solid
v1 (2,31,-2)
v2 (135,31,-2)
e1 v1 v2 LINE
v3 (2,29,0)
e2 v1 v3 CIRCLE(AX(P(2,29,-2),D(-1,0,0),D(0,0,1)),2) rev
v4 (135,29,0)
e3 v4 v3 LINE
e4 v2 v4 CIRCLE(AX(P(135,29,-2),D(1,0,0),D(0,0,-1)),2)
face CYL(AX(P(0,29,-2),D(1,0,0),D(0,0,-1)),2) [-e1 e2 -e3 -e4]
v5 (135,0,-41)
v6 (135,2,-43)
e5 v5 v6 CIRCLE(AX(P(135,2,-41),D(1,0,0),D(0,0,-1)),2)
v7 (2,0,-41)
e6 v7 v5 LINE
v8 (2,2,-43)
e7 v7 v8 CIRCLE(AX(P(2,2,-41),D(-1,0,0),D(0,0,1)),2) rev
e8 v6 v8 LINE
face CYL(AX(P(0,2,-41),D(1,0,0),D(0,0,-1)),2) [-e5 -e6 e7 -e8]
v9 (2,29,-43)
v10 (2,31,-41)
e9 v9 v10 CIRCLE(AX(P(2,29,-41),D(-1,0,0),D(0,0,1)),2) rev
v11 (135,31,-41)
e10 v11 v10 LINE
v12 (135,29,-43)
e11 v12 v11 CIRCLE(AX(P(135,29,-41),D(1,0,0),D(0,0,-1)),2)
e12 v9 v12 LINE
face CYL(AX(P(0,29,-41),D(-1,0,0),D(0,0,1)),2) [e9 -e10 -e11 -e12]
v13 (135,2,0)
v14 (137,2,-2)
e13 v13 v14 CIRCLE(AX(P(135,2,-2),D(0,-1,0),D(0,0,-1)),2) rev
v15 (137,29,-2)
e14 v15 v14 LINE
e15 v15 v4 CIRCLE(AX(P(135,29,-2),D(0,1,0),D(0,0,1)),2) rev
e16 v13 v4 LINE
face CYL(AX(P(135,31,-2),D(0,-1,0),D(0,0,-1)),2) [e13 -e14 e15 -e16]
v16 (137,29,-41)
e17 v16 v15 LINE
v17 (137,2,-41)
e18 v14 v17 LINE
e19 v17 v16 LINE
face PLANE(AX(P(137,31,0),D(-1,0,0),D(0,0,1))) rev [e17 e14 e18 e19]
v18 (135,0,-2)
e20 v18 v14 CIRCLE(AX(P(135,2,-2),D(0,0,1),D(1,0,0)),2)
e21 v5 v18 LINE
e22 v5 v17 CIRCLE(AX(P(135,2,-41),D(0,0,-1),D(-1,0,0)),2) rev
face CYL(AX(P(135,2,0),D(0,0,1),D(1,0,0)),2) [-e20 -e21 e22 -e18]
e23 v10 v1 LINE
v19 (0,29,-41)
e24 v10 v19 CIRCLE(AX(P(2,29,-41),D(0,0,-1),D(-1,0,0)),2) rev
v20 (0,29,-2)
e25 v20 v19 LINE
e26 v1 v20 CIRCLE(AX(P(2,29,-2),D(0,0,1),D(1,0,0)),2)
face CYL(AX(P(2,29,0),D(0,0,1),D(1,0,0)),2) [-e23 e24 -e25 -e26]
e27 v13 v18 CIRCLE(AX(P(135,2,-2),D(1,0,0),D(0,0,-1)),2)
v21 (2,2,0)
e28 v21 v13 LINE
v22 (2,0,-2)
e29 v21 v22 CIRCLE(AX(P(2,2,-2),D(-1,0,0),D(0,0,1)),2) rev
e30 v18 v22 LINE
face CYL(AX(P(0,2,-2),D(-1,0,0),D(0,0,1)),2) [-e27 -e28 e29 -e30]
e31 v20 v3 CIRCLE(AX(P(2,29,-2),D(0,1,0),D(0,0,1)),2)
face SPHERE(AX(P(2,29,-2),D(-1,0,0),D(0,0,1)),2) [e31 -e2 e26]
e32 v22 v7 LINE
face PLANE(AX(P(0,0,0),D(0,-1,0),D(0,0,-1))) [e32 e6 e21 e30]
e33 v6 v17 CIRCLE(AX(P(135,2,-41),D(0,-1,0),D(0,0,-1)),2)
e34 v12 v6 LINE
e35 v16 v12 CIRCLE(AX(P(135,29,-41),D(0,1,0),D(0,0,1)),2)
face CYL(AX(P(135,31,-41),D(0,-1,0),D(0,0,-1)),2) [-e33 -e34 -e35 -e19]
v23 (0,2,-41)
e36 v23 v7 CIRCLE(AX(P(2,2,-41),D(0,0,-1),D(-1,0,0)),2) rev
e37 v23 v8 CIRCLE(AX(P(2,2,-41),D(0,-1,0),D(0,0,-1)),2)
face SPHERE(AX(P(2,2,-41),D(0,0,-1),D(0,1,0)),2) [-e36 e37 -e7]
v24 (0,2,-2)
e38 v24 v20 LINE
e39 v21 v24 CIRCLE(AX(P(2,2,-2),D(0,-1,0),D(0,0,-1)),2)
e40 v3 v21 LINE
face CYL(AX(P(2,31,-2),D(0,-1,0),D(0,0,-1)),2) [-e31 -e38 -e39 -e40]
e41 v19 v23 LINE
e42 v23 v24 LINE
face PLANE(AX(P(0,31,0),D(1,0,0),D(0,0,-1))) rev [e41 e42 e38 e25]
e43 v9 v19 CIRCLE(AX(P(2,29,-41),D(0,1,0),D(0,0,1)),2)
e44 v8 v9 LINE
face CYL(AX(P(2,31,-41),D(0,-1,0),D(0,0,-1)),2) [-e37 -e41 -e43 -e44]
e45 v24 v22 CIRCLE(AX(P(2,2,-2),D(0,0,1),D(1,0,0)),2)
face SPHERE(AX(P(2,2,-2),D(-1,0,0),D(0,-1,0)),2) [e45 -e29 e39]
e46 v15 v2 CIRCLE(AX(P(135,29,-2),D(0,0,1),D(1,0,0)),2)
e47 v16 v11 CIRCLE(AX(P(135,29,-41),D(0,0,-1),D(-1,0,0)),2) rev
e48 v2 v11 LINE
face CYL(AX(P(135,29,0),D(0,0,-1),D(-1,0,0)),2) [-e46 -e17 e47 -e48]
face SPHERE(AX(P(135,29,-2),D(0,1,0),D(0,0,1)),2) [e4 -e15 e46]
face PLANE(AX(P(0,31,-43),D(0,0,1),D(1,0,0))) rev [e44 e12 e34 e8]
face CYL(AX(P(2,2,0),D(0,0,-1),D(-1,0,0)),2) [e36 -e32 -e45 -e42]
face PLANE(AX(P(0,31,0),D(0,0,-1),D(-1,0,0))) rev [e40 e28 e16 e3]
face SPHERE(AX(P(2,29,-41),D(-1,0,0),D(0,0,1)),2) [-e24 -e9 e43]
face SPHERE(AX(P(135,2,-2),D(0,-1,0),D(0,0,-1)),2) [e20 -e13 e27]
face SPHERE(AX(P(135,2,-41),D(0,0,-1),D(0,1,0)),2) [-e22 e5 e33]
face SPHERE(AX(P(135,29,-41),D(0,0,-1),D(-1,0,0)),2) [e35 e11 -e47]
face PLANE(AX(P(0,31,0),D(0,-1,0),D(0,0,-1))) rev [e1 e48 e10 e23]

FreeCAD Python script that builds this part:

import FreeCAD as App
import Part
import Sketcher

V = App.Vector

doc = App.newDocument("Part")
body = doc.addObject("PartDesign::Body", "Body")

sketch1 = body.newObject("Sketcher::SketchObject", "Sketch")
sketch1.AttachmentSupport = (doc.getObject("XZ_Plane"), [""])
sketch1.MapMode = "FlatFace"
sketch1.addGeometry([
    Part.LineSegment(V(0, -43, 0), V(0, 0, 0)),
    Part.LineSegment(V(0, 0, 0), V(137, 0, 0)),
    Part.LineSegment(V(137, 0, 0), V(137, -43, 0)),
    Part.LineSegment(V(137, -43, 0), V(0, -43, 0)),
], False)
sketch1.addConstraint([
    Sketcher.Constraint("Coincident", 0, 2, 1, 1),
    Sketcher.Constraint("Coincident", 1, 2, 2, 1),
    Sketcher.Constraint("Coincident", 2, 2, 3, 1),
    Sketcher.Constraint("Coincident", 3, 2, 0, 1),
    Sketcher.Constraint("Vertical", 0),
    Sketcher.Constraint("Horizontal", 1),
    Sketcher.Constraint("Vertical", 2),
    Sketcher.Constraint("Horizontal", 3),
    Sketcher.Constraint("Coincident", 0, 2, -1, 1),
    Sketcher.Constraint("DistanceX", 1, 1, 1, 2, 137.0),
    Sketcher.Constraint("DistanceY", 0, 1, 0, 2, 43.0),
])
pad1 = body.newObject("PartDesign::Pad", "Pad")
pad1.Profile = sketch1
pad1.Length = 31
pad1.Reversed = True
doc.recompute()

fillet = body.newObject("PartDesign::Fillet", "Fillet")
fillet.Base = (pad1, ["Edge1"])
fillet.UseAllEdges = True
fillet.Radius = 2

doc.recompute()
